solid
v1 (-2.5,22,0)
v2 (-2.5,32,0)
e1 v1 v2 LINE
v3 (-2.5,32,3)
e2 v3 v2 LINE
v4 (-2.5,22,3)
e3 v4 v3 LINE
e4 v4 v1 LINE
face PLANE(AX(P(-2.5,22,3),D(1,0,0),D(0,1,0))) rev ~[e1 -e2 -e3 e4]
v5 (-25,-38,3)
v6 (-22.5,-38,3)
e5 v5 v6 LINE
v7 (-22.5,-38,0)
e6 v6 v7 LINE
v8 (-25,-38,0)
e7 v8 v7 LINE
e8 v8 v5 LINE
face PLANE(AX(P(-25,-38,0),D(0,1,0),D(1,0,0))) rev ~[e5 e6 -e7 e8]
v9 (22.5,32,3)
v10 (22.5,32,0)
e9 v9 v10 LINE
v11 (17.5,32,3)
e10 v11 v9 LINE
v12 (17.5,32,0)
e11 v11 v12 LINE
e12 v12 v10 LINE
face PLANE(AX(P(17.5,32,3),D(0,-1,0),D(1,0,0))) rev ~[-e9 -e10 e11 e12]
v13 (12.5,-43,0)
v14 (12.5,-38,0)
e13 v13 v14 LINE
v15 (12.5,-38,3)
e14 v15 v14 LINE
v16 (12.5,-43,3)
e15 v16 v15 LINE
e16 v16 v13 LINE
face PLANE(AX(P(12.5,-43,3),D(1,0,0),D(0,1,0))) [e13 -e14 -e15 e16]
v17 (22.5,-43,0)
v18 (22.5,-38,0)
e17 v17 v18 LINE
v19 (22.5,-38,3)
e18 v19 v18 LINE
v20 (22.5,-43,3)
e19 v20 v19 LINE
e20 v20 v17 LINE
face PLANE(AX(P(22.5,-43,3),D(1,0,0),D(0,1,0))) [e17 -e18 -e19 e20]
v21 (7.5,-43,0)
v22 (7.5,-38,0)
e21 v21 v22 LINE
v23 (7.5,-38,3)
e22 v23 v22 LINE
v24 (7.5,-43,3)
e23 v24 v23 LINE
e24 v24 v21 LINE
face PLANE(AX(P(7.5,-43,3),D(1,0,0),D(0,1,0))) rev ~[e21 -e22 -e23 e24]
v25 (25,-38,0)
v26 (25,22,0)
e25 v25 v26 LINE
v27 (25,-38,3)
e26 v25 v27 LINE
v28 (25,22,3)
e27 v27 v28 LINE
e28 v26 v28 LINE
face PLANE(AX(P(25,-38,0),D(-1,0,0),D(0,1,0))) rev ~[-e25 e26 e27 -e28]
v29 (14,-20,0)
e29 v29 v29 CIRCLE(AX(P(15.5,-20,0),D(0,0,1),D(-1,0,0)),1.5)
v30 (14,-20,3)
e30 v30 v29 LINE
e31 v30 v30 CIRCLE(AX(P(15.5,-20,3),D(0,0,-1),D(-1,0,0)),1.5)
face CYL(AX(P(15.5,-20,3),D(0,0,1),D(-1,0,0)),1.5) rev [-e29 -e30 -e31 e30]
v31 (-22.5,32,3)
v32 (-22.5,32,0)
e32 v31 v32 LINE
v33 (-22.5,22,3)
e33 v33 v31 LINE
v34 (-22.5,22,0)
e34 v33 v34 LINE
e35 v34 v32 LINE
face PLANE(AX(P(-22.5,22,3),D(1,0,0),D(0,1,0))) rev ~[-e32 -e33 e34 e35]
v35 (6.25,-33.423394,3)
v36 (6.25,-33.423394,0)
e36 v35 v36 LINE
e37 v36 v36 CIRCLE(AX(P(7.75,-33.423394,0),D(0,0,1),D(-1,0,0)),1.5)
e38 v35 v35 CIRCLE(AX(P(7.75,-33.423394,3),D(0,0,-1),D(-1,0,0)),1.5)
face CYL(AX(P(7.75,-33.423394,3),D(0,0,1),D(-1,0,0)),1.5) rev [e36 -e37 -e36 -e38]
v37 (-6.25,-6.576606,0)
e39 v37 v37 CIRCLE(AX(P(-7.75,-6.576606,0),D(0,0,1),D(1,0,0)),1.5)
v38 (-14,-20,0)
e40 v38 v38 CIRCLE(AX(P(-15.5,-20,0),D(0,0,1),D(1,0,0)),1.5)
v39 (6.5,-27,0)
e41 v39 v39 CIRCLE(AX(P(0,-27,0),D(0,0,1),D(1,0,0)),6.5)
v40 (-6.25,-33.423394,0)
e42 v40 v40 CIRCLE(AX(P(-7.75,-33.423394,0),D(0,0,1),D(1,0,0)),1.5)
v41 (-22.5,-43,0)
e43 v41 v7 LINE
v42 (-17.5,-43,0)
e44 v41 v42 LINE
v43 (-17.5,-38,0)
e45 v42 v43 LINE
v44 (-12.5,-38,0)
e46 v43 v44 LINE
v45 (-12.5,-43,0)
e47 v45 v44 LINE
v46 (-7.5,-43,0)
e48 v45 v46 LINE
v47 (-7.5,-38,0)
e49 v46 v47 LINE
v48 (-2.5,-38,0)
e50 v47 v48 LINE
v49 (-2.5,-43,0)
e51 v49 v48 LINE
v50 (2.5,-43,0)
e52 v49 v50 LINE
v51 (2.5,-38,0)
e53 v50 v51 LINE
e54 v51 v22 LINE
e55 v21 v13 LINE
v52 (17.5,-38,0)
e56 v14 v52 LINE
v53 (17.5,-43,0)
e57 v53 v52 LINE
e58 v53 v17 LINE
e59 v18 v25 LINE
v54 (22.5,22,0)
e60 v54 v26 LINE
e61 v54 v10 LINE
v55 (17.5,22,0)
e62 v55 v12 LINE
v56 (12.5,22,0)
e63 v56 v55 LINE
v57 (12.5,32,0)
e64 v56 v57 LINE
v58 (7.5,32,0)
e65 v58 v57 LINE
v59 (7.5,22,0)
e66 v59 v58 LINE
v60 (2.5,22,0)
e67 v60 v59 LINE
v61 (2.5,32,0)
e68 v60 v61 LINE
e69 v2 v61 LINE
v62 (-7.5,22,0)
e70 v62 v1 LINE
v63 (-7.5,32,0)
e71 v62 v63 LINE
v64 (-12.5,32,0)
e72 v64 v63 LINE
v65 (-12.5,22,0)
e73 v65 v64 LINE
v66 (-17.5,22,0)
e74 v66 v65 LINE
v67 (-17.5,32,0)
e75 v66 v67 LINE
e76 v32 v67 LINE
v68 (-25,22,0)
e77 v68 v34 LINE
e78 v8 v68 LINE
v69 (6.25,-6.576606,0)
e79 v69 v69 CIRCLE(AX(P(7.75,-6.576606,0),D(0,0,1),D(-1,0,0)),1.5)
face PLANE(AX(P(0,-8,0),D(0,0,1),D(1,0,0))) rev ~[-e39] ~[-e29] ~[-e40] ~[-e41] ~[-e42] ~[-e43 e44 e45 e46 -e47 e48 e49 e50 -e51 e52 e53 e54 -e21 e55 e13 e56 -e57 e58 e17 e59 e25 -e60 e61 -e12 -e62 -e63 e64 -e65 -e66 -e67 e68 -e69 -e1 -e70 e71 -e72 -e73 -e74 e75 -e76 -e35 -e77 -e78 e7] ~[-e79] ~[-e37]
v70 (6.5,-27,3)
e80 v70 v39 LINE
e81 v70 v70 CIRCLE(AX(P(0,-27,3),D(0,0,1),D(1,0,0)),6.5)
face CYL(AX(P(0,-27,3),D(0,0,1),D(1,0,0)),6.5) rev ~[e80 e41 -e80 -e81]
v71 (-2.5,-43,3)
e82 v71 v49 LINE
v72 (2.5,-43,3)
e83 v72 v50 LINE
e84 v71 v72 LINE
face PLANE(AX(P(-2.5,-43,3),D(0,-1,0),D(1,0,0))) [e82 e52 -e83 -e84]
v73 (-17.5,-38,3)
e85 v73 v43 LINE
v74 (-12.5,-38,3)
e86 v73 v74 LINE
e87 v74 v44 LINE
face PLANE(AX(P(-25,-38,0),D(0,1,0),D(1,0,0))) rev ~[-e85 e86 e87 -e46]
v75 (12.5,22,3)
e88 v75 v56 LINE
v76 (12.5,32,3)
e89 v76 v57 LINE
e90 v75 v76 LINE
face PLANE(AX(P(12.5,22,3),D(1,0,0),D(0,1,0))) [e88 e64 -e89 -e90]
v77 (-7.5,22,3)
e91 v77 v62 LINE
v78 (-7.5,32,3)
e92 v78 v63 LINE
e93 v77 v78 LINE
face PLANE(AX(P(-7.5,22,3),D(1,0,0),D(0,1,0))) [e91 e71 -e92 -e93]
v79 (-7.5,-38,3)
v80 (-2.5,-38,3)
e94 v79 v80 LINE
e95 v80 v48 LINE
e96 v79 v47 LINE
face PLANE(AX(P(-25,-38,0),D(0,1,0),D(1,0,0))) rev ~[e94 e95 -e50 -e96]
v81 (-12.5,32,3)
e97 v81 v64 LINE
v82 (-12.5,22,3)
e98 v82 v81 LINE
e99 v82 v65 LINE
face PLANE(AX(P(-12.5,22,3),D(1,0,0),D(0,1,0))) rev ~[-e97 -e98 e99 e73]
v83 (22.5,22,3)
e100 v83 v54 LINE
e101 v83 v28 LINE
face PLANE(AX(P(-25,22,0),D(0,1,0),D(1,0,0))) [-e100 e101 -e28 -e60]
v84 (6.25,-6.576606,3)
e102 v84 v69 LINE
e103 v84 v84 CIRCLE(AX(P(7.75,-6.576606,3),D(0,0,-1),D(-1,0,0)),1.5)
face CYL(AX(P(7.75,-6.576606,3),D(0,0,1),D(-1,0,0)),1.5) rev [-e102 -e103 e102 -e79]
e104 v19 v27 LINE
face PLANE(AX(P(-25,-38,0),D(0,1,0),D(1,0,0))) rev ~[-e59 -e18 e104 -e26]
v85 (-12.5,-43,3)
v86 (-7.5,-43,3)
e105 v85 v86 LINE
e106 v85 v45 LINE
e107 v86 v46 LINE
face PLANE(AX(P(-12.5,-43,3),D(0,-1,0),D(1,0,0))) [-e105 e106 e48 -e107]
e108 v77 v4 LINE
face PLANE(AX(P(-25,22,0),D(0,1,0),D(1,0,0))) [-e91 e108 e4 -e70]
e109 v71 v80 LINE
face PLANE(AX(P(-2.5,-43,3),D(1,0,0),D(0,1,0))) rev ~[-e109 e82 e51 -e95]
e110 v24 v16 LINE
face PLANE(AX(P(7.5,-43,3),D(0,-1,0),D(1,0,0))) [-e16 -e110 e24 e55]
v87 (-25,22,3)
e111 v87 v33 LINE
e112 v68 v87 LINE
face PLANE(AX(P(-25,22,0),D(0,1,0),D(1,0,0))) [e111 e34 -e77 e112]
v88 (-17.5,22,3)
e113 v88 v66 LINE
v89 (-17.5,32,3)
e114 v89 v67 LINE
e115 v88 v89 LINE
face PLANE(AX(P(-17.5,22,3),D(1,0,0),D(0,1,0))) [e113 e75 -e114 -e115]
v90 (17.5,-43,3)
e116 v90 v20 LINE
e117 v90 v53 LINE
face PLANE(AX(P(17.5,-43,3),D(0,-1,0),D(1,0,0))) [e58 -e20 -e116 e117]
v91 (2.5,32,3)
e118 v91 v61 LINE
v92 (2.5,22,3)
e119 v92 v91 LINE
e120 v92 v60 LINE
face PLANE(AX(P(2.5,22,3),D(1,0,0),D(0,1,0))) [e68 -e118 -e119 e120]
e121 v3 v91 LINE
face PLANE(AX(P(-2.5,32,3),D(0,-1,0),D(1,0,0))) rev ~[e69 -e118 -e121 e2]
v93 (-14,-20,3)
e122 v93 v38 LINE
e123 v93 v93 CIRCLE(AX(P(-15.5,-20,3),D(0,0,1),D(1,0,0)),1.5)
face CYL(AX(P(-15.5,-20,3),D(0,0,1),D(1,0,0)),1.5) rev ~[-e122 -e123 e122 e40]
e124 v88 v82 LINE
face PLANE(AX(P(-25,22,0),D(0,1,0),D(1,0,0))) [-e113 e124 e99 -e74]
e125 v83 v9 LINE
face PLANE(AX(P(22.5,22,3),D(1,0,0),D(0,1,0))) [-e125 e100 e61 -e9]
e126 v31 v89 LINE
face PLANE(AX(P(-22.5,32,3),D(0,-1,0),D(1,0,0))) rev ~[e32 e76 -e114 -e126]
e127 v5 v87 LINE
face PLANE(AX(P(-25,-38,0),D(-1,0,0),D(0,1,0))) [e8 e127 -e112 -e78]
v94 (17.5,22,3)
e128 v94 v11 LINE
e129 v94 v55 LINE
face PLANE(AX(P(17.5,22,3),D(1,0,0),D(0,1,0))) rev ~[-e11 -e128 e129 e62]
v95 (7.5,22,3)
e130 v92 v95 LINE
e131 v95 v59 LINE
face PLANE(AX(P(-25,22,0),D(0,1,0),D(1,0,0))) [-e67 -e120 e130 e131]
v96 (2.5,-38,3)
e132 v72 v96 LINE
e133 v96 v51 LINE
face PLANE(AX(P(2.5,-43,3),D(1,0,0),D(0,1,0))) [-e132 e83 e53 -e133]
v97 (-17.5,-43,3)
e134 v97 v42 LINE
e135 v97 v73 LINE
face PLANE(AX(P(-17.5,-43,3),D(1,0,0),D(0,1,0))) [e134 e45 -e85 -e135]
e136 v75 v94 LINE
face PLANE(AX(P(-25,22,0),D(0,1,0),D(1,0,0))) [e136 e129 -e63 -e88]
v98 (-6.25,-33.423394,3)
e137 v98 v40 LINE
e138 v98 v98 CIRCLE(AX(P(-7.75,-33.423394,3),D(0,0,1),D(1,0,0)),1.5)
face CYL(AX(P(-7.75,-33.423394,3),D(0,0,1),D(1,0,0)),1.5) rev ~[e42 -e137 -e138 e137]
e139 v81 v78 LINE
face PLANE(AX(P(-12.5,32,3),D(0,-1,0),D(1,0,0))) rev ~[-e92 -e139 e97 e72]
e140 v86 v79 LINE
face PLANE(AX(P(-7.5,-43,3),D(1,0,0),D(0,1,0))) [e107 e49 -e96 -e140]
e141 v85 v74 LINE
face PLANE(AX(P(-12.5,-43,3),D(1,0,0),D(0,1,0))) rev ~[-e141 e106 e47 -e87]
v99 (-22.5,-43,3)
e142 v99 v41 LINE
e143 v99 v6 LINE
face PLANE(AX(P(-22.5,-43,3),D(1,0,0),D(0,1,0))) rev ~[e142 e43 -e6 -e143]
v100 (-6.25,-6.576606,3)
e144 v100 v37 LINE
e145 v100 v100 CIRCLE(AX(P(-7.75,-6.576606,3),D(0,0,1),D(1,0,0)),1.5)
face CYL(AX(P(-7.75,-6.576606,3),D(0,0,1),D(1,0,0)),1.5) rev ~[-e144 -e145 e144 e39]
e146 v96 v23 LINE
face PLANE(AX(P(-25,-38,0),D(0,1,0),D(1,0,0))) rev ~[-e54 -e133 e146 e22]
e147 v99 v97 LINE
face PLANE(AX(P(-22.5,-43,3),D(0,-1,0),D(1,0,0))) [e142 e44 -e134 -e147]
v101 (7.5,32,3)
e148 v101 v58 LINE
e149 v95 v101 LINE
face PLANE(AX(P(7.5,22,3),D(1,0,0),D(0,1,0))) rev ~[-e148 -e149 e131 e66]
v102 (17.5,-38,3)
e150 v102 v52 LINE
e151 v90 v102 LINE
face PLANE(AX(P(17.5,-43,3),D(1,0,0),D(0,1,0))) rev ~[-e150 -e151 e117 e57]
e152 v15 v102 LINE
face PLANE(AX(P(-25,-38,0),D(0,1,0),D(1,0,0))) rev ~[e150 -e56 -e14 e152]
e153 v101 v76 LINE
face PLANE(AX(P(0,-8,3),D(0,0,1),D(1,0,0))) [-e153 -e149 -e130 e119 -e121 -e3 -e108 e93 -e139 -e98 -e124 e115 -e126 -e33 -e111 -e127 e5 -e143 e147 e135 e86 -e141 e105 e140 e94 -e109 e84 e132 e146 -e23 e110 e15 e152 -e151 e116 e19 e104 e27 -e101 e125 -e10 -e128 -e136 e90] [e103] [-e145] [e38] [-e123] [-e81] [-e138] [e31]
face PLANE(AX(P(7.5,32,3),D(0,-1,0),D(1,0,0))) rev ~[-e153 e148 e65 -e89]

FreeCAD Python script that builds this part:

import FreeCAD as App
import Part
import Sketcher
Q = App.Units.Quantity


def add_polygon(sketch, points):
    """Adds a closed chain of lines whose ends are joined by coincident constraints."""
    first, n = sketch.GeometryCount, len(points)
    for a, b in zip(points, points[1:] + points[:1]):
        sketch.addGeometry(Part.LineSegment(App.Vector(*a, 0), App.Vector(*b, 0)), False)
    for i in range(n):
        sketch.addConstraint(Sketcher.Constraint("Coincident", first + i, 2, first + (i + 1) % n, 1))

doc = App.newDocument("Part")
body = doc.addObject("PartDesign::Body", "Body")

sketch1 = body.newObject("Sketcher::SketchObject", "Sketch")
sketch1.AttachmentSupport = (doc.getObject("XY_Plane"), [""])
sketch1.MapMode = "FlatFace"
add_polygon(sketch1, [(-25, 22), (-25, -38), (25, -38), (25, 22)])
sketch1.addConstraint([
    Sketcher.Constraint("Vertical", 0),
    Sketcher.Constraint("Horizontal", 1),
    Sketcher.Constraint("Vertical", 2),
    Sketcher.Constraint("Horizontal", 3),
    Sketcher.Constraint("DistanceX", 1, 1, 1, 2, Q("50 mm")),
    Sketcher.Constraint("DistanceY", 0, 2, 0, 1, Q("60 mm")),
    Sketcher.Constraint("DistanceX", 0, 2, -1, 1, Q("25 mm")),
    Sketcher.Constraint("DistanceY", 0, 2, -1, 1, Q("38 mm")),
])
pad1 = body.newObject("PartDesign::Pad", "Pad")
pad1.Profile = sketch1
pad1.Length = 3

sketch2 = body.newObject("Sketcher::SketchObject", "Sketch001")
sketch2.AttachmentSupport = (doc.getObject("XY_Plane"), [""])
sketch2.MapMode = "FlatFace"
sketch2.AttachmentOffset = App.Placement(App.Vector(0, 0, 3), App.Rotation())
sketch2.addGeometry([
    Part.Circle(App.Vector(-7.75, -6.576606, 0), App.Vector(0, 0, 1), 1.5),
    Part.Circle(App.Vector(-15.5, -20, 0), App.Vector(0, 0, 1), 1.5),
    Part.Circle(App.Vector(-7.75, -33.423394, 0), App.Vector(0, 0, 1), 1.5),
], False)
sketch2.addConstraint([
    Sketcher.Constraint("Equal", 0, 1),
    Sketcher.Constraint("Equal", 1, 2),
    Sketcher.Constraint("Vertical", 0, 3, 2, 3),
    Sketcher.Constraint("Diameter", 0, Q("3 mm")),
    Sketcher.Constraint("DistanceY", 1, 3, -1, 1, Q("20 mm")),
    Sketcher.Constraint("DistanceX", 1, 3, -1, 1, Q("15.5 mm")),
    Sketcher.Constraint("DistanceX", 0, 3, -1, 1, Q("7.75 mm")),
    Sketcher.Constraint("DistanceY", 0, 3, -1, 1, Q("6.576606 mm")),
    Sketcher.Constraint("DistanceY", 2, 3, -1, 1, Q("33.423394 mm")),
])
pocket1 = body.newObject("PartDesign::Pocket", "Pocket")
pocket1.Profile = sketch2
pocket1.Length = 5

sketch3 = body.newObject("Sketcher::SketchObject", "Sketch002")
sketch3.AttachmentSupport = (doc.getObject("XY_Plane"), [""])
sketch3.MapMode = "FlatFace"
sketch3.AttachmentOffset = App.Placement(App.Vector(0, 0, 3), App.Rotation())
sketch3.addGeometry(Part.Circle(App.Vector(0, -27, 0), App.Vector(0, 0, 1), 6.5), False)
sketch3.addConstraint([
    Sketcher.Constraint("PointOnObject", 0, 3, -2),
    Sketcher.Constraint("Diameter", 0, Q("13 mm")),
    Sketcher.Constraint("DistanceY", 0, 3, -1, 1, Q("27 mm")),
])
pocket2 = body.newObject("PartDesign::Pocket", "Pocket001")
pocket2.Profile = sketch3
pocket2.Length = 10
doc.recompute()

mirrored = body.newObject("PartDesign::Mirrored", "Mirrored")
mirrored.Originals = [pocket1]
mirrored.MirrorPlane = (doc.getObject("YZ_Plane"), [""])
body.Tip = mirrored

sketch4 = body.newObject("Sketcher::SketchObject", "Sketch003")
sketch4.AttachmentSupport = (doc.getObject("XY_Plane"), [""])
sketch4.MapMode = "FlatFace"
sketch4.AttachmentOffset = App.Placement(App.Vector(0, 0, 3), App.Rotation())
add_polygon(sketch4, [(-22.5, 32), (-22.5, 22), (-17.5, 22), (-17.5, 32)])
add_polygon(sketch4, [(-22.5, -38), (-22.5, -43), (-17.5, -43), (-17.5, -38)])
sketch4.addConstraint([
    Sketcher.Constraint("Vertical", 0),
    Sketcher.Constraint("Horizontal", 1),
    Sketcher.Constraint("Vertical", 2),
    Sketcher.Constraint("Horizontal", 3),
    Sketcher.Constraint("Vertical", 4),
    Sketcher.Constraint("Horizontal", 5),
    Sketcher.Constraint("Vertical", 6),
    Sketcher.Constraint("Horizontal", 7),
    Sketcher.Constraint("Vertical", 3, 2, 4, 2),
    Sketcher.Constraint("Vertical", 2, 2, 5, 2),
    Sketcher.Constraint("Equal", 7, 4),
    Sketcher.Constraint("DistanceX", 1, 1, 1, 2, Q("5 mm")),
    Sketcher.Constraint("DistanceY", 0, 2, 0, 1, Q("10 mm")),
    Sketcher.Constraint("DistanceY", -1, 1, 0, 2, Q("22 mm")),
    Sketcher.Constraint("DistanceY", 4, 2, -1, 1, Q("43 mm")),
    Sketcher.Constraint("DistanceX", 0, 2, -1, 1, Q("22.5 mm")),
])
pad2 = body.newObject("PartDesign::Pad", "Pad001")
pad2.Profile = sketch4
pad2.Length = 3
pad2.Reversed = True
doc.recompute()

linearpattern = body.newObject("PartDesign::LinearPattern", "LinearPattern")
linearpattern.Originals = [pad2]
linearpattern.Direction = (doc.getObject("X_Axis"), [""])
linearpattern.Mode = "offset"
linearpattern.Offset = 10
linearpattern.Occurrences = 5
body.Tip = linearpattern

doc.recompute()
